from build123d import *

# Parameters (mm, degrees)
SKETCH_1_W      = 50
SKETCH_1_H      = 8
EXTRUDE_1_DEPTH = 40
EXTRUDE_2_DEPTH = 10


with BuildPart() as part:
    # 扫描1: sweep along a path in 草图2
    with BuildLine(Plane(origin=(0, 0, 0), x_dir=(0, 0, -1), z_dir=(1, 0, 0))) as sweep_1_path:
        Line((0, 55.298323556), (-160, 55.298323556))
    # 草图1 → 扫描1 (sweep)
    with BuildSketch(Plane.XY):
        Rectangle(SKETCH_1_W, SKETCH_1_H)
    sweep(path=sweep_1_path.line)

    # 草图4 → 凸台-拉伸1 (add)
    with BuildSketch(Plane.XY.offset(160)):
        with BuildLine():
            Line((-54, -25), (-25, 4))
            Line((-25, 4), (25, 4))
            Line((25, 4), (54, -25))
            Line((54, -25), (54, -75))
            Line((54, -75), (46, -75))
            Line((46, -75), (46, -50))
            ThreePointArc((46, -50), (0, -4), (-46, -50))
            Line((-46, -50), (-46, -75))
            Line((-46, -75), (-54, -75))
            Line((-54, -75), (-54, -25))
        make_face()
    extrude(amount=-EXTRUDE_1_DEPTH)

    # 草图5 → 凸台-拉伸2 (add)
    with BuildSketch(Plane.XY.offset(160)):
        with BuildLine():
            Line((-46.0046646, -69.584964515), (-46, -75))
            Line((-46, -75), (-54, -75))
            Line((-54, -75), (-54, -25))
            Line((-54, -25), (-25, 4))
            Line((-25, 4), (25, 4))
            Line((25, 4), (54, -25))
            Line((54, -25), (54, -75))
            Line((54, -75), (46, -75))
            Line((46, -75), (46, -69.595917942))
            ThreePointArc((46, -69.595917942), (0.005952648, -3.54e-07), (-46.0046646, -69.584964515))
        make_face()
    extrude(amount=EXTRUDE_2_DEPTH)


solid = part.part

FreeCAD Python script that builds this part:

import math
import FreeCAD as App
import Part
import Sketcher

V = App.Vector

doc = App.newDocument("Part")
params = doc.addObject("Spreadsheet::Sheet", "Params")
for row, (alias, value) in enumerate([
    ("sketch1_width", "50 mm"),
    ("sketch1_height", "8 mm"),
    ("sketch2_height", "160 mm"),
    ("sketch3_radius", "46 mm"),
    ("sketch3_width", "8 mm"),
    ("sketch3_width2", "50 mm"),
    ("sketch3_height", "25 mm"),
    ("pad1_length", "40 mm"),
    ("sketch4_radius", "50 mm"),
    ("sketch4_width", "8 mm"),
    ("sketch4_width2", "50 mm"),
    ("pad2_length", "10 mm"),
], start=1):
    params.set(f"A{row}", alias)
    params.set(f"B{row}", "=" + value)
    params.setAlias(f"B{row}", alias)

body = doc.addObject("PartDesign::Body", "Body")

sketch1 = body.newObject("Sketcher::SketchObject", "Sketch")
sketch1.AttachmentSupport = (doc.getObject("XY_Plane"), [""])
sketch1.MapMode = "FlatFace"
sketch1.addGeometry([
    Part.LineSegment(V(-25, 4, 0), V(-25, -4, 0)),
    Part.LineSegment(V(-25, -4, 0), V(25, -4, 0)),
    Part.LineSegment(V(25, -4, 0), V(25, 4, 0)),
    Part.LineSegment(V(25, 4, 0), V(-25, 4, 0)),
], False)
sketch1.addConstraint([
    Sketcher.Constraint("Coincident", 0, 2, 1, 1),
    Sketcher.Constraint("Coincident", 1, 2, 2, 1),
    Sketcher.Constraint("Coincident", 2, 2, 3, 1),
    Sketcher.Constraint("Coincident", 3, 2, 0, 1),
    Sketcher.Constraint("Vertical", 0),
    Sketcher.Constraint("Horizontal", 1),
    Sketcher.Constraint("Vertical", 2),
    Sketcher.Constraint("Horizontal", 3),
    Sketcher.Constraint("Symmetric", 0, 2, 2, 2, -1, 1),
    Sketcher.Constraint("DistanceX", 1, 1, 1, 2, 50.0),
    Sketcher.Constraint("DistanceY", 0, 2, 0, 1, 8.0),
])
sketch1.setExpression("Constraints[9]", "Params.sketch1_width")
sketch1.setExpression("Constraints[10]", "Params.sketch1_height")

sketch2 = body.newObject("Sketcher::SketchObject", "Sketch001")
sketch2.AttachmentSupport = (doc.getObject("XZ_Plane"), [""])
sketch2.MapMode = "FlatFace"
sketch2.AttachmentOffset = App.Placement(V(0, 0, -55.298324), App.Rotation())
sketch2.addGeometry(Part.LineSegment(V(0, 0, 0), V(0, 160, 0)), False)
sketch2.addConstraint([
    Sketcher.Constraint("Vertical", 0),
    Sketcher.Constraint("Coincident", 0, 1, -1, 1),
    Sketcher.Constraint("DistanceY", 0, 1, 0, 2, 160.0),
])
sketch2.setExpression("Constraints[2]", "Params.sketch2_height")
doc.recompute()

additivepipe = body.newObject("PartDesign::AdditivePipe", "AdditivePipe")
additivepipe.Profile = sketch1
additivepipe.Spine = (sketch2, ["Edge1"])

sketch3 = body.newObject("Sketcher::SketchObject", "Sketch002")
sketch3.AttachmentSupport = (doc.getObject("XY_Plane"), [""])
sketch3.MapMode = "FlatFace"
sketch3.AttachmentOffset = App.Placement(V(0, 0, 160), App.Rotation())
sketch3.addGeometry([
    Part.LineSegment(V(-25, 4, 0), V(-54, -25, 0)),
    Part.LineSegment(V(-54, -25, 0), V(-54, -75, 0)),
    Part.LineSegment(V(-54, -75, 0), V(-46, -75, 0)),
    Part.LineSegment(V(-46, -75, 0), V(-46, -50, 0)),
    Part.ArcOfCircle(Part.Circle(V(0, -50, 0), V(0, 0, 1), 46), math.radians(0), math.radians(180)),
    Part.LineSegment(V(46, -50, 0), V(46, -75, 0)),
    Part.LineSegment(V(46, -75, 0), V(54, -75, 0)),
    Part.LineSegment(V(54, -75, 0), V(54, -25, 0)),
    Part.LineSegment(V(54, -25, 0), V(25, 4, 0)),
    Part.LineSegment(V(25, 4, 0), V(-25, 4, 0)),
], False)
sketch3.addConstraint([
    Sketcher.Constraint("Coincident", 0, 2, 1, 1),
    Sketcher.Constraint("Coincident", 1, 2, 2, 1),
    Sketcher.Constraint("Coincident", 2, 2, 3, 1),
    Sketcher.Constraint("Tangent", 3, 2, 4, 2),
    Sketcher.Constraint("Tangent", 4, 1, 5, 1),
    Sketcher.Constraint("Coincident", 5, 2, 6, 1),
    Sketcher.Constraint("Coincident", 6, 2, 7, 1),
    Sketcher.Constraint("Coincident", 7, 2, 8, 1),
    Sketcher.Constraint("Coincident", 8, 2, 9, 1),
    Sketcher.Constraint("Coincident", 9, 2, 0, 1),
    Sketcher.Constraint("Vertical", 1),
    Sketcher.Constraint("Horizontal", 2),
    Sketcher.Constraint("Vertical", 3),
    Sketcher.Constraint("Vertical", 5),
    Sketcher.Constraint("Horizontal", 6),
    Sketcher.Constraint("Vertical", 7),
    Sketcher.Constraint("Horizontal", 9),
    Sketcher.Constraint("Symmetric", 2, 2, 5, 2, -2),
    Sketcher.Constraint("Symmetric", 0, 2, 7, 2, -2),
    Sketcher.Constraint("Perpendicular", 0, 8),
    Sketcher.Constraint("Equal", 9, 1),
    Sketcher.Constraint("Equal", 0, 8),
    Sketcher.Constraint("Radius", 4, 46.0),
    Sketcher.Constraint("DistanceX", 2, 1, 2, 2, 8.0),
    Sketcher.Constraint("DistanceX", 9, 2, 9, 1, 50.0),
    Sketcher.Constraint("DistanceY", 3, 1, 3, 2, 25.0),
    Sketcher.Constraint("DistanceY", 4, 3, -1, 1, 50.0),
])
sketch3.setExpression("Constraints[22]", "Params.sketch3_radius")
sketch3.setExpression("Constraints[23]", "Params.sketch3_width")
sketch3.setExpression("Constraints[24]", "Params.sketch3_width2")
sketch3.setExpression("Constraints[25]", "Params.sketch3_height")
pad1 = body.newObject("PartDesign::Pad", "Pad")
pad1.Profile = sketch3
pad1.setExpression("Length", "Params.pad1_length")
pad1.Reversed = True

sketch4 = body.newObject("Sketcher::SketchObject", "Sketch003")
sketch4.AttachmentSupport = (doc.getObject("XY_Plane"), [""])
sketch4.MapMode = "FlatFace"
sketch4.AttachmentOffset = App.Placement(V(0, 0, 160), App.Rotation())
sketch4.addGeometry([
    Part.LineSegment(V(-46, -75, 0), V(-46, -70, 0)),
    Part.ArcOfCircle(Part.Circle(V(0, -50, 0), V(0, 0, 1), 50), math.radians(-23), math.radians(203)),
    Part.LineSegment(V(46, -70, 0), V(46, -75, 0)),
    Part.LineSegment(V(46, -75, 0), V(54, -75, 0)),
    Part.LineSegment(V(54, -75, 0), V(54, -25, 0)),
    Part.LineSegment(V(54, -25, 0), V(25, 4, 0)),
    Part.LineSegment(V(25, 4, 0), V(-25, 4, 0)),
    Part.LineSegment(V(-25, 4, 0), V(-54, -25, 0)),
    Part.LineSegment(V(-54, -25, 0), V(-54, -75, 0)),
    Part.LineSegment(V(-54, -75, 0), V(-46, -75, 0)),
], False)
sketch4.addConstraint([
    Sketcher.Constraint("Coincident", 0, 2, 1, 2),
    Sketcher.Constraint("Coincident", 1, 1, 2, 1),
    Sketcher.Constraint("Coincident", 2, 2, 3, 1),
    Sketcher.Constraint("Coincident", 3, 2, 4, 1),
    Sketcher.Constraint("Coincident", 4, 2, 5, 1),
    Sketcher.Constraint("Coincident", 5, 2, 6, 1),
    Sketcher.Constraint("Coincident", 6, 2, 7, 1),
    Sketcher.Constraint("Coincident", 7, 2, 8, 1),
    Sketcher.Constraint("Coincident", 8, 2, 9, 1),
    Sketcher.Constraint("Coincident", 9, 2, 0, 1),
    Sketcher.Constraint("Vertical", 2),
    Sketcher.Constraint("Horizontal", 3),
    Sketcher.Constraint("Vertical", 4),
    Sketcher.Constraint("Horizontal", 6),
    Sketcher.Constraint("Vertical", 8),
    Sketcher.Constraint("Horizontal", 9),
    Sketcher.Constraint("Symmetric", 4, 2, 7, 2, -2),
    Sketcher.Constraint("Symmetric", 2, 2, 9, 2, -2),
    Sketcher.Constraint("PointOnObject", 1, 3, -2),
    Sketcher.Constraint("Perpendicular", 5, 7),
    Sketcher.Constraint("Equal", 6, 4),
    Sketcher.Constraint("Equal", 5, 7),
    Sketcher.Constraint("Radius", 1, 50.0),
    Sketcher.Constraint("DistanceX", 3, 1, 3, 2, 8.0),
    Sketcher.Constraint("DistanceX", 6, 2, 6, 1, 50.0),
    Sketcher.Constraint("DistanceY", 1, 3, -1, 1, 50.0),
    Sketcher.Constraint("DistanceX", -1, 1, 1, 1, 46.0),
    Sketcher.Constraint("DistanceY", 2, 2, -1, 1, 75.0),
    Sketcher.Constraint("Distance", 0, 5.415037),
])
sketch4.setExpression("Constraints[22]", "Params.sketch4_radius")
sketch4.setExpression("Constraints[23]", "Params.sketch4_width")
sketch4.setExpression("Constraints[24]", "Params.sketch4_width2")
pad2 = body.newObject("PartDesign::Pad", "Pad001")
pad2.Profile = sketch4
pad2.setExpression("Length", "Params.pad2_length")

doc.recompute()
